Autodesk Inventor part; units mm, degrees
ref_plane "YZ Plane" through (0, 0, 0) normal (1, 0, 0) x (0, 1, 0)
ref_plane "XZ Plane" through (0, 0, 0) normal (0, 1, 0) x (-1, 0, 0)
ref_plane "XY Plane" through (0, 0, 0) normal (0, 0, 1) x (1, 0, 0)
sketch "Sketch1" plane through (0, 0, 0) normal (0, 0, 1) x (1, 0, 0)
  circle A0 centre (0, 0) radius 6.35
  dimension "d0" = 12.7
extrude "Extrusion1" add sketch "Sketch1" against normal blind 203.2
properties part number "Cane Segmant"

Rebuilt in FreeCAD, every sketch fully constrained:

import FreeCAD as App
import Part
import Sketcher
Q = App.Units.Quantity

doc = App.newDocument("Part")
params = doc.addObject("Spreadsheet::Sheet", "Params")
for row, (alias, value) in enumerate([
    ("sketch1_diameter", "0.5 in"),
    ("pad1_length", "8 in"),
], start=1):
    params.set(f"A{row}", alias)
    params.set(f"B{row}", "=" + value)
    params.setAlias(f"B{row}", alias)

body = doc.addObject("PartDesign::Body", "Body")

# Sketch on XY plane
sketch1 = body.newObject("Sketcher::SketchObject", "Sketch")
sketch1.AttachmentSupport = (doc.getObject("XY_Plane"), [""])
sketch1.MapMode = "FlatFace"
sketch1.addGeometry(Part.Circle(App.Vector(0, 0, 0), App.Vector(0, 0, 1), 6), False)
sketch1.addConstraint(Sketcher.Constraint("Coincident", 0, 3, -1, 1))
sketch1.addConstraint(Sketcher.Constraint("Diameter", 0, Q("0.5 in")))
sketch1.setExpression("Constraints[1]", "Params.sketch1_diameter")
pad1 = body.newObject("PartDesign::Pad", "Pad")
pad1.Profile = sketch1
pad1.setExpression("Length", "Params.pad1_length")
pad1.Reversed = True

doc.recompute()
